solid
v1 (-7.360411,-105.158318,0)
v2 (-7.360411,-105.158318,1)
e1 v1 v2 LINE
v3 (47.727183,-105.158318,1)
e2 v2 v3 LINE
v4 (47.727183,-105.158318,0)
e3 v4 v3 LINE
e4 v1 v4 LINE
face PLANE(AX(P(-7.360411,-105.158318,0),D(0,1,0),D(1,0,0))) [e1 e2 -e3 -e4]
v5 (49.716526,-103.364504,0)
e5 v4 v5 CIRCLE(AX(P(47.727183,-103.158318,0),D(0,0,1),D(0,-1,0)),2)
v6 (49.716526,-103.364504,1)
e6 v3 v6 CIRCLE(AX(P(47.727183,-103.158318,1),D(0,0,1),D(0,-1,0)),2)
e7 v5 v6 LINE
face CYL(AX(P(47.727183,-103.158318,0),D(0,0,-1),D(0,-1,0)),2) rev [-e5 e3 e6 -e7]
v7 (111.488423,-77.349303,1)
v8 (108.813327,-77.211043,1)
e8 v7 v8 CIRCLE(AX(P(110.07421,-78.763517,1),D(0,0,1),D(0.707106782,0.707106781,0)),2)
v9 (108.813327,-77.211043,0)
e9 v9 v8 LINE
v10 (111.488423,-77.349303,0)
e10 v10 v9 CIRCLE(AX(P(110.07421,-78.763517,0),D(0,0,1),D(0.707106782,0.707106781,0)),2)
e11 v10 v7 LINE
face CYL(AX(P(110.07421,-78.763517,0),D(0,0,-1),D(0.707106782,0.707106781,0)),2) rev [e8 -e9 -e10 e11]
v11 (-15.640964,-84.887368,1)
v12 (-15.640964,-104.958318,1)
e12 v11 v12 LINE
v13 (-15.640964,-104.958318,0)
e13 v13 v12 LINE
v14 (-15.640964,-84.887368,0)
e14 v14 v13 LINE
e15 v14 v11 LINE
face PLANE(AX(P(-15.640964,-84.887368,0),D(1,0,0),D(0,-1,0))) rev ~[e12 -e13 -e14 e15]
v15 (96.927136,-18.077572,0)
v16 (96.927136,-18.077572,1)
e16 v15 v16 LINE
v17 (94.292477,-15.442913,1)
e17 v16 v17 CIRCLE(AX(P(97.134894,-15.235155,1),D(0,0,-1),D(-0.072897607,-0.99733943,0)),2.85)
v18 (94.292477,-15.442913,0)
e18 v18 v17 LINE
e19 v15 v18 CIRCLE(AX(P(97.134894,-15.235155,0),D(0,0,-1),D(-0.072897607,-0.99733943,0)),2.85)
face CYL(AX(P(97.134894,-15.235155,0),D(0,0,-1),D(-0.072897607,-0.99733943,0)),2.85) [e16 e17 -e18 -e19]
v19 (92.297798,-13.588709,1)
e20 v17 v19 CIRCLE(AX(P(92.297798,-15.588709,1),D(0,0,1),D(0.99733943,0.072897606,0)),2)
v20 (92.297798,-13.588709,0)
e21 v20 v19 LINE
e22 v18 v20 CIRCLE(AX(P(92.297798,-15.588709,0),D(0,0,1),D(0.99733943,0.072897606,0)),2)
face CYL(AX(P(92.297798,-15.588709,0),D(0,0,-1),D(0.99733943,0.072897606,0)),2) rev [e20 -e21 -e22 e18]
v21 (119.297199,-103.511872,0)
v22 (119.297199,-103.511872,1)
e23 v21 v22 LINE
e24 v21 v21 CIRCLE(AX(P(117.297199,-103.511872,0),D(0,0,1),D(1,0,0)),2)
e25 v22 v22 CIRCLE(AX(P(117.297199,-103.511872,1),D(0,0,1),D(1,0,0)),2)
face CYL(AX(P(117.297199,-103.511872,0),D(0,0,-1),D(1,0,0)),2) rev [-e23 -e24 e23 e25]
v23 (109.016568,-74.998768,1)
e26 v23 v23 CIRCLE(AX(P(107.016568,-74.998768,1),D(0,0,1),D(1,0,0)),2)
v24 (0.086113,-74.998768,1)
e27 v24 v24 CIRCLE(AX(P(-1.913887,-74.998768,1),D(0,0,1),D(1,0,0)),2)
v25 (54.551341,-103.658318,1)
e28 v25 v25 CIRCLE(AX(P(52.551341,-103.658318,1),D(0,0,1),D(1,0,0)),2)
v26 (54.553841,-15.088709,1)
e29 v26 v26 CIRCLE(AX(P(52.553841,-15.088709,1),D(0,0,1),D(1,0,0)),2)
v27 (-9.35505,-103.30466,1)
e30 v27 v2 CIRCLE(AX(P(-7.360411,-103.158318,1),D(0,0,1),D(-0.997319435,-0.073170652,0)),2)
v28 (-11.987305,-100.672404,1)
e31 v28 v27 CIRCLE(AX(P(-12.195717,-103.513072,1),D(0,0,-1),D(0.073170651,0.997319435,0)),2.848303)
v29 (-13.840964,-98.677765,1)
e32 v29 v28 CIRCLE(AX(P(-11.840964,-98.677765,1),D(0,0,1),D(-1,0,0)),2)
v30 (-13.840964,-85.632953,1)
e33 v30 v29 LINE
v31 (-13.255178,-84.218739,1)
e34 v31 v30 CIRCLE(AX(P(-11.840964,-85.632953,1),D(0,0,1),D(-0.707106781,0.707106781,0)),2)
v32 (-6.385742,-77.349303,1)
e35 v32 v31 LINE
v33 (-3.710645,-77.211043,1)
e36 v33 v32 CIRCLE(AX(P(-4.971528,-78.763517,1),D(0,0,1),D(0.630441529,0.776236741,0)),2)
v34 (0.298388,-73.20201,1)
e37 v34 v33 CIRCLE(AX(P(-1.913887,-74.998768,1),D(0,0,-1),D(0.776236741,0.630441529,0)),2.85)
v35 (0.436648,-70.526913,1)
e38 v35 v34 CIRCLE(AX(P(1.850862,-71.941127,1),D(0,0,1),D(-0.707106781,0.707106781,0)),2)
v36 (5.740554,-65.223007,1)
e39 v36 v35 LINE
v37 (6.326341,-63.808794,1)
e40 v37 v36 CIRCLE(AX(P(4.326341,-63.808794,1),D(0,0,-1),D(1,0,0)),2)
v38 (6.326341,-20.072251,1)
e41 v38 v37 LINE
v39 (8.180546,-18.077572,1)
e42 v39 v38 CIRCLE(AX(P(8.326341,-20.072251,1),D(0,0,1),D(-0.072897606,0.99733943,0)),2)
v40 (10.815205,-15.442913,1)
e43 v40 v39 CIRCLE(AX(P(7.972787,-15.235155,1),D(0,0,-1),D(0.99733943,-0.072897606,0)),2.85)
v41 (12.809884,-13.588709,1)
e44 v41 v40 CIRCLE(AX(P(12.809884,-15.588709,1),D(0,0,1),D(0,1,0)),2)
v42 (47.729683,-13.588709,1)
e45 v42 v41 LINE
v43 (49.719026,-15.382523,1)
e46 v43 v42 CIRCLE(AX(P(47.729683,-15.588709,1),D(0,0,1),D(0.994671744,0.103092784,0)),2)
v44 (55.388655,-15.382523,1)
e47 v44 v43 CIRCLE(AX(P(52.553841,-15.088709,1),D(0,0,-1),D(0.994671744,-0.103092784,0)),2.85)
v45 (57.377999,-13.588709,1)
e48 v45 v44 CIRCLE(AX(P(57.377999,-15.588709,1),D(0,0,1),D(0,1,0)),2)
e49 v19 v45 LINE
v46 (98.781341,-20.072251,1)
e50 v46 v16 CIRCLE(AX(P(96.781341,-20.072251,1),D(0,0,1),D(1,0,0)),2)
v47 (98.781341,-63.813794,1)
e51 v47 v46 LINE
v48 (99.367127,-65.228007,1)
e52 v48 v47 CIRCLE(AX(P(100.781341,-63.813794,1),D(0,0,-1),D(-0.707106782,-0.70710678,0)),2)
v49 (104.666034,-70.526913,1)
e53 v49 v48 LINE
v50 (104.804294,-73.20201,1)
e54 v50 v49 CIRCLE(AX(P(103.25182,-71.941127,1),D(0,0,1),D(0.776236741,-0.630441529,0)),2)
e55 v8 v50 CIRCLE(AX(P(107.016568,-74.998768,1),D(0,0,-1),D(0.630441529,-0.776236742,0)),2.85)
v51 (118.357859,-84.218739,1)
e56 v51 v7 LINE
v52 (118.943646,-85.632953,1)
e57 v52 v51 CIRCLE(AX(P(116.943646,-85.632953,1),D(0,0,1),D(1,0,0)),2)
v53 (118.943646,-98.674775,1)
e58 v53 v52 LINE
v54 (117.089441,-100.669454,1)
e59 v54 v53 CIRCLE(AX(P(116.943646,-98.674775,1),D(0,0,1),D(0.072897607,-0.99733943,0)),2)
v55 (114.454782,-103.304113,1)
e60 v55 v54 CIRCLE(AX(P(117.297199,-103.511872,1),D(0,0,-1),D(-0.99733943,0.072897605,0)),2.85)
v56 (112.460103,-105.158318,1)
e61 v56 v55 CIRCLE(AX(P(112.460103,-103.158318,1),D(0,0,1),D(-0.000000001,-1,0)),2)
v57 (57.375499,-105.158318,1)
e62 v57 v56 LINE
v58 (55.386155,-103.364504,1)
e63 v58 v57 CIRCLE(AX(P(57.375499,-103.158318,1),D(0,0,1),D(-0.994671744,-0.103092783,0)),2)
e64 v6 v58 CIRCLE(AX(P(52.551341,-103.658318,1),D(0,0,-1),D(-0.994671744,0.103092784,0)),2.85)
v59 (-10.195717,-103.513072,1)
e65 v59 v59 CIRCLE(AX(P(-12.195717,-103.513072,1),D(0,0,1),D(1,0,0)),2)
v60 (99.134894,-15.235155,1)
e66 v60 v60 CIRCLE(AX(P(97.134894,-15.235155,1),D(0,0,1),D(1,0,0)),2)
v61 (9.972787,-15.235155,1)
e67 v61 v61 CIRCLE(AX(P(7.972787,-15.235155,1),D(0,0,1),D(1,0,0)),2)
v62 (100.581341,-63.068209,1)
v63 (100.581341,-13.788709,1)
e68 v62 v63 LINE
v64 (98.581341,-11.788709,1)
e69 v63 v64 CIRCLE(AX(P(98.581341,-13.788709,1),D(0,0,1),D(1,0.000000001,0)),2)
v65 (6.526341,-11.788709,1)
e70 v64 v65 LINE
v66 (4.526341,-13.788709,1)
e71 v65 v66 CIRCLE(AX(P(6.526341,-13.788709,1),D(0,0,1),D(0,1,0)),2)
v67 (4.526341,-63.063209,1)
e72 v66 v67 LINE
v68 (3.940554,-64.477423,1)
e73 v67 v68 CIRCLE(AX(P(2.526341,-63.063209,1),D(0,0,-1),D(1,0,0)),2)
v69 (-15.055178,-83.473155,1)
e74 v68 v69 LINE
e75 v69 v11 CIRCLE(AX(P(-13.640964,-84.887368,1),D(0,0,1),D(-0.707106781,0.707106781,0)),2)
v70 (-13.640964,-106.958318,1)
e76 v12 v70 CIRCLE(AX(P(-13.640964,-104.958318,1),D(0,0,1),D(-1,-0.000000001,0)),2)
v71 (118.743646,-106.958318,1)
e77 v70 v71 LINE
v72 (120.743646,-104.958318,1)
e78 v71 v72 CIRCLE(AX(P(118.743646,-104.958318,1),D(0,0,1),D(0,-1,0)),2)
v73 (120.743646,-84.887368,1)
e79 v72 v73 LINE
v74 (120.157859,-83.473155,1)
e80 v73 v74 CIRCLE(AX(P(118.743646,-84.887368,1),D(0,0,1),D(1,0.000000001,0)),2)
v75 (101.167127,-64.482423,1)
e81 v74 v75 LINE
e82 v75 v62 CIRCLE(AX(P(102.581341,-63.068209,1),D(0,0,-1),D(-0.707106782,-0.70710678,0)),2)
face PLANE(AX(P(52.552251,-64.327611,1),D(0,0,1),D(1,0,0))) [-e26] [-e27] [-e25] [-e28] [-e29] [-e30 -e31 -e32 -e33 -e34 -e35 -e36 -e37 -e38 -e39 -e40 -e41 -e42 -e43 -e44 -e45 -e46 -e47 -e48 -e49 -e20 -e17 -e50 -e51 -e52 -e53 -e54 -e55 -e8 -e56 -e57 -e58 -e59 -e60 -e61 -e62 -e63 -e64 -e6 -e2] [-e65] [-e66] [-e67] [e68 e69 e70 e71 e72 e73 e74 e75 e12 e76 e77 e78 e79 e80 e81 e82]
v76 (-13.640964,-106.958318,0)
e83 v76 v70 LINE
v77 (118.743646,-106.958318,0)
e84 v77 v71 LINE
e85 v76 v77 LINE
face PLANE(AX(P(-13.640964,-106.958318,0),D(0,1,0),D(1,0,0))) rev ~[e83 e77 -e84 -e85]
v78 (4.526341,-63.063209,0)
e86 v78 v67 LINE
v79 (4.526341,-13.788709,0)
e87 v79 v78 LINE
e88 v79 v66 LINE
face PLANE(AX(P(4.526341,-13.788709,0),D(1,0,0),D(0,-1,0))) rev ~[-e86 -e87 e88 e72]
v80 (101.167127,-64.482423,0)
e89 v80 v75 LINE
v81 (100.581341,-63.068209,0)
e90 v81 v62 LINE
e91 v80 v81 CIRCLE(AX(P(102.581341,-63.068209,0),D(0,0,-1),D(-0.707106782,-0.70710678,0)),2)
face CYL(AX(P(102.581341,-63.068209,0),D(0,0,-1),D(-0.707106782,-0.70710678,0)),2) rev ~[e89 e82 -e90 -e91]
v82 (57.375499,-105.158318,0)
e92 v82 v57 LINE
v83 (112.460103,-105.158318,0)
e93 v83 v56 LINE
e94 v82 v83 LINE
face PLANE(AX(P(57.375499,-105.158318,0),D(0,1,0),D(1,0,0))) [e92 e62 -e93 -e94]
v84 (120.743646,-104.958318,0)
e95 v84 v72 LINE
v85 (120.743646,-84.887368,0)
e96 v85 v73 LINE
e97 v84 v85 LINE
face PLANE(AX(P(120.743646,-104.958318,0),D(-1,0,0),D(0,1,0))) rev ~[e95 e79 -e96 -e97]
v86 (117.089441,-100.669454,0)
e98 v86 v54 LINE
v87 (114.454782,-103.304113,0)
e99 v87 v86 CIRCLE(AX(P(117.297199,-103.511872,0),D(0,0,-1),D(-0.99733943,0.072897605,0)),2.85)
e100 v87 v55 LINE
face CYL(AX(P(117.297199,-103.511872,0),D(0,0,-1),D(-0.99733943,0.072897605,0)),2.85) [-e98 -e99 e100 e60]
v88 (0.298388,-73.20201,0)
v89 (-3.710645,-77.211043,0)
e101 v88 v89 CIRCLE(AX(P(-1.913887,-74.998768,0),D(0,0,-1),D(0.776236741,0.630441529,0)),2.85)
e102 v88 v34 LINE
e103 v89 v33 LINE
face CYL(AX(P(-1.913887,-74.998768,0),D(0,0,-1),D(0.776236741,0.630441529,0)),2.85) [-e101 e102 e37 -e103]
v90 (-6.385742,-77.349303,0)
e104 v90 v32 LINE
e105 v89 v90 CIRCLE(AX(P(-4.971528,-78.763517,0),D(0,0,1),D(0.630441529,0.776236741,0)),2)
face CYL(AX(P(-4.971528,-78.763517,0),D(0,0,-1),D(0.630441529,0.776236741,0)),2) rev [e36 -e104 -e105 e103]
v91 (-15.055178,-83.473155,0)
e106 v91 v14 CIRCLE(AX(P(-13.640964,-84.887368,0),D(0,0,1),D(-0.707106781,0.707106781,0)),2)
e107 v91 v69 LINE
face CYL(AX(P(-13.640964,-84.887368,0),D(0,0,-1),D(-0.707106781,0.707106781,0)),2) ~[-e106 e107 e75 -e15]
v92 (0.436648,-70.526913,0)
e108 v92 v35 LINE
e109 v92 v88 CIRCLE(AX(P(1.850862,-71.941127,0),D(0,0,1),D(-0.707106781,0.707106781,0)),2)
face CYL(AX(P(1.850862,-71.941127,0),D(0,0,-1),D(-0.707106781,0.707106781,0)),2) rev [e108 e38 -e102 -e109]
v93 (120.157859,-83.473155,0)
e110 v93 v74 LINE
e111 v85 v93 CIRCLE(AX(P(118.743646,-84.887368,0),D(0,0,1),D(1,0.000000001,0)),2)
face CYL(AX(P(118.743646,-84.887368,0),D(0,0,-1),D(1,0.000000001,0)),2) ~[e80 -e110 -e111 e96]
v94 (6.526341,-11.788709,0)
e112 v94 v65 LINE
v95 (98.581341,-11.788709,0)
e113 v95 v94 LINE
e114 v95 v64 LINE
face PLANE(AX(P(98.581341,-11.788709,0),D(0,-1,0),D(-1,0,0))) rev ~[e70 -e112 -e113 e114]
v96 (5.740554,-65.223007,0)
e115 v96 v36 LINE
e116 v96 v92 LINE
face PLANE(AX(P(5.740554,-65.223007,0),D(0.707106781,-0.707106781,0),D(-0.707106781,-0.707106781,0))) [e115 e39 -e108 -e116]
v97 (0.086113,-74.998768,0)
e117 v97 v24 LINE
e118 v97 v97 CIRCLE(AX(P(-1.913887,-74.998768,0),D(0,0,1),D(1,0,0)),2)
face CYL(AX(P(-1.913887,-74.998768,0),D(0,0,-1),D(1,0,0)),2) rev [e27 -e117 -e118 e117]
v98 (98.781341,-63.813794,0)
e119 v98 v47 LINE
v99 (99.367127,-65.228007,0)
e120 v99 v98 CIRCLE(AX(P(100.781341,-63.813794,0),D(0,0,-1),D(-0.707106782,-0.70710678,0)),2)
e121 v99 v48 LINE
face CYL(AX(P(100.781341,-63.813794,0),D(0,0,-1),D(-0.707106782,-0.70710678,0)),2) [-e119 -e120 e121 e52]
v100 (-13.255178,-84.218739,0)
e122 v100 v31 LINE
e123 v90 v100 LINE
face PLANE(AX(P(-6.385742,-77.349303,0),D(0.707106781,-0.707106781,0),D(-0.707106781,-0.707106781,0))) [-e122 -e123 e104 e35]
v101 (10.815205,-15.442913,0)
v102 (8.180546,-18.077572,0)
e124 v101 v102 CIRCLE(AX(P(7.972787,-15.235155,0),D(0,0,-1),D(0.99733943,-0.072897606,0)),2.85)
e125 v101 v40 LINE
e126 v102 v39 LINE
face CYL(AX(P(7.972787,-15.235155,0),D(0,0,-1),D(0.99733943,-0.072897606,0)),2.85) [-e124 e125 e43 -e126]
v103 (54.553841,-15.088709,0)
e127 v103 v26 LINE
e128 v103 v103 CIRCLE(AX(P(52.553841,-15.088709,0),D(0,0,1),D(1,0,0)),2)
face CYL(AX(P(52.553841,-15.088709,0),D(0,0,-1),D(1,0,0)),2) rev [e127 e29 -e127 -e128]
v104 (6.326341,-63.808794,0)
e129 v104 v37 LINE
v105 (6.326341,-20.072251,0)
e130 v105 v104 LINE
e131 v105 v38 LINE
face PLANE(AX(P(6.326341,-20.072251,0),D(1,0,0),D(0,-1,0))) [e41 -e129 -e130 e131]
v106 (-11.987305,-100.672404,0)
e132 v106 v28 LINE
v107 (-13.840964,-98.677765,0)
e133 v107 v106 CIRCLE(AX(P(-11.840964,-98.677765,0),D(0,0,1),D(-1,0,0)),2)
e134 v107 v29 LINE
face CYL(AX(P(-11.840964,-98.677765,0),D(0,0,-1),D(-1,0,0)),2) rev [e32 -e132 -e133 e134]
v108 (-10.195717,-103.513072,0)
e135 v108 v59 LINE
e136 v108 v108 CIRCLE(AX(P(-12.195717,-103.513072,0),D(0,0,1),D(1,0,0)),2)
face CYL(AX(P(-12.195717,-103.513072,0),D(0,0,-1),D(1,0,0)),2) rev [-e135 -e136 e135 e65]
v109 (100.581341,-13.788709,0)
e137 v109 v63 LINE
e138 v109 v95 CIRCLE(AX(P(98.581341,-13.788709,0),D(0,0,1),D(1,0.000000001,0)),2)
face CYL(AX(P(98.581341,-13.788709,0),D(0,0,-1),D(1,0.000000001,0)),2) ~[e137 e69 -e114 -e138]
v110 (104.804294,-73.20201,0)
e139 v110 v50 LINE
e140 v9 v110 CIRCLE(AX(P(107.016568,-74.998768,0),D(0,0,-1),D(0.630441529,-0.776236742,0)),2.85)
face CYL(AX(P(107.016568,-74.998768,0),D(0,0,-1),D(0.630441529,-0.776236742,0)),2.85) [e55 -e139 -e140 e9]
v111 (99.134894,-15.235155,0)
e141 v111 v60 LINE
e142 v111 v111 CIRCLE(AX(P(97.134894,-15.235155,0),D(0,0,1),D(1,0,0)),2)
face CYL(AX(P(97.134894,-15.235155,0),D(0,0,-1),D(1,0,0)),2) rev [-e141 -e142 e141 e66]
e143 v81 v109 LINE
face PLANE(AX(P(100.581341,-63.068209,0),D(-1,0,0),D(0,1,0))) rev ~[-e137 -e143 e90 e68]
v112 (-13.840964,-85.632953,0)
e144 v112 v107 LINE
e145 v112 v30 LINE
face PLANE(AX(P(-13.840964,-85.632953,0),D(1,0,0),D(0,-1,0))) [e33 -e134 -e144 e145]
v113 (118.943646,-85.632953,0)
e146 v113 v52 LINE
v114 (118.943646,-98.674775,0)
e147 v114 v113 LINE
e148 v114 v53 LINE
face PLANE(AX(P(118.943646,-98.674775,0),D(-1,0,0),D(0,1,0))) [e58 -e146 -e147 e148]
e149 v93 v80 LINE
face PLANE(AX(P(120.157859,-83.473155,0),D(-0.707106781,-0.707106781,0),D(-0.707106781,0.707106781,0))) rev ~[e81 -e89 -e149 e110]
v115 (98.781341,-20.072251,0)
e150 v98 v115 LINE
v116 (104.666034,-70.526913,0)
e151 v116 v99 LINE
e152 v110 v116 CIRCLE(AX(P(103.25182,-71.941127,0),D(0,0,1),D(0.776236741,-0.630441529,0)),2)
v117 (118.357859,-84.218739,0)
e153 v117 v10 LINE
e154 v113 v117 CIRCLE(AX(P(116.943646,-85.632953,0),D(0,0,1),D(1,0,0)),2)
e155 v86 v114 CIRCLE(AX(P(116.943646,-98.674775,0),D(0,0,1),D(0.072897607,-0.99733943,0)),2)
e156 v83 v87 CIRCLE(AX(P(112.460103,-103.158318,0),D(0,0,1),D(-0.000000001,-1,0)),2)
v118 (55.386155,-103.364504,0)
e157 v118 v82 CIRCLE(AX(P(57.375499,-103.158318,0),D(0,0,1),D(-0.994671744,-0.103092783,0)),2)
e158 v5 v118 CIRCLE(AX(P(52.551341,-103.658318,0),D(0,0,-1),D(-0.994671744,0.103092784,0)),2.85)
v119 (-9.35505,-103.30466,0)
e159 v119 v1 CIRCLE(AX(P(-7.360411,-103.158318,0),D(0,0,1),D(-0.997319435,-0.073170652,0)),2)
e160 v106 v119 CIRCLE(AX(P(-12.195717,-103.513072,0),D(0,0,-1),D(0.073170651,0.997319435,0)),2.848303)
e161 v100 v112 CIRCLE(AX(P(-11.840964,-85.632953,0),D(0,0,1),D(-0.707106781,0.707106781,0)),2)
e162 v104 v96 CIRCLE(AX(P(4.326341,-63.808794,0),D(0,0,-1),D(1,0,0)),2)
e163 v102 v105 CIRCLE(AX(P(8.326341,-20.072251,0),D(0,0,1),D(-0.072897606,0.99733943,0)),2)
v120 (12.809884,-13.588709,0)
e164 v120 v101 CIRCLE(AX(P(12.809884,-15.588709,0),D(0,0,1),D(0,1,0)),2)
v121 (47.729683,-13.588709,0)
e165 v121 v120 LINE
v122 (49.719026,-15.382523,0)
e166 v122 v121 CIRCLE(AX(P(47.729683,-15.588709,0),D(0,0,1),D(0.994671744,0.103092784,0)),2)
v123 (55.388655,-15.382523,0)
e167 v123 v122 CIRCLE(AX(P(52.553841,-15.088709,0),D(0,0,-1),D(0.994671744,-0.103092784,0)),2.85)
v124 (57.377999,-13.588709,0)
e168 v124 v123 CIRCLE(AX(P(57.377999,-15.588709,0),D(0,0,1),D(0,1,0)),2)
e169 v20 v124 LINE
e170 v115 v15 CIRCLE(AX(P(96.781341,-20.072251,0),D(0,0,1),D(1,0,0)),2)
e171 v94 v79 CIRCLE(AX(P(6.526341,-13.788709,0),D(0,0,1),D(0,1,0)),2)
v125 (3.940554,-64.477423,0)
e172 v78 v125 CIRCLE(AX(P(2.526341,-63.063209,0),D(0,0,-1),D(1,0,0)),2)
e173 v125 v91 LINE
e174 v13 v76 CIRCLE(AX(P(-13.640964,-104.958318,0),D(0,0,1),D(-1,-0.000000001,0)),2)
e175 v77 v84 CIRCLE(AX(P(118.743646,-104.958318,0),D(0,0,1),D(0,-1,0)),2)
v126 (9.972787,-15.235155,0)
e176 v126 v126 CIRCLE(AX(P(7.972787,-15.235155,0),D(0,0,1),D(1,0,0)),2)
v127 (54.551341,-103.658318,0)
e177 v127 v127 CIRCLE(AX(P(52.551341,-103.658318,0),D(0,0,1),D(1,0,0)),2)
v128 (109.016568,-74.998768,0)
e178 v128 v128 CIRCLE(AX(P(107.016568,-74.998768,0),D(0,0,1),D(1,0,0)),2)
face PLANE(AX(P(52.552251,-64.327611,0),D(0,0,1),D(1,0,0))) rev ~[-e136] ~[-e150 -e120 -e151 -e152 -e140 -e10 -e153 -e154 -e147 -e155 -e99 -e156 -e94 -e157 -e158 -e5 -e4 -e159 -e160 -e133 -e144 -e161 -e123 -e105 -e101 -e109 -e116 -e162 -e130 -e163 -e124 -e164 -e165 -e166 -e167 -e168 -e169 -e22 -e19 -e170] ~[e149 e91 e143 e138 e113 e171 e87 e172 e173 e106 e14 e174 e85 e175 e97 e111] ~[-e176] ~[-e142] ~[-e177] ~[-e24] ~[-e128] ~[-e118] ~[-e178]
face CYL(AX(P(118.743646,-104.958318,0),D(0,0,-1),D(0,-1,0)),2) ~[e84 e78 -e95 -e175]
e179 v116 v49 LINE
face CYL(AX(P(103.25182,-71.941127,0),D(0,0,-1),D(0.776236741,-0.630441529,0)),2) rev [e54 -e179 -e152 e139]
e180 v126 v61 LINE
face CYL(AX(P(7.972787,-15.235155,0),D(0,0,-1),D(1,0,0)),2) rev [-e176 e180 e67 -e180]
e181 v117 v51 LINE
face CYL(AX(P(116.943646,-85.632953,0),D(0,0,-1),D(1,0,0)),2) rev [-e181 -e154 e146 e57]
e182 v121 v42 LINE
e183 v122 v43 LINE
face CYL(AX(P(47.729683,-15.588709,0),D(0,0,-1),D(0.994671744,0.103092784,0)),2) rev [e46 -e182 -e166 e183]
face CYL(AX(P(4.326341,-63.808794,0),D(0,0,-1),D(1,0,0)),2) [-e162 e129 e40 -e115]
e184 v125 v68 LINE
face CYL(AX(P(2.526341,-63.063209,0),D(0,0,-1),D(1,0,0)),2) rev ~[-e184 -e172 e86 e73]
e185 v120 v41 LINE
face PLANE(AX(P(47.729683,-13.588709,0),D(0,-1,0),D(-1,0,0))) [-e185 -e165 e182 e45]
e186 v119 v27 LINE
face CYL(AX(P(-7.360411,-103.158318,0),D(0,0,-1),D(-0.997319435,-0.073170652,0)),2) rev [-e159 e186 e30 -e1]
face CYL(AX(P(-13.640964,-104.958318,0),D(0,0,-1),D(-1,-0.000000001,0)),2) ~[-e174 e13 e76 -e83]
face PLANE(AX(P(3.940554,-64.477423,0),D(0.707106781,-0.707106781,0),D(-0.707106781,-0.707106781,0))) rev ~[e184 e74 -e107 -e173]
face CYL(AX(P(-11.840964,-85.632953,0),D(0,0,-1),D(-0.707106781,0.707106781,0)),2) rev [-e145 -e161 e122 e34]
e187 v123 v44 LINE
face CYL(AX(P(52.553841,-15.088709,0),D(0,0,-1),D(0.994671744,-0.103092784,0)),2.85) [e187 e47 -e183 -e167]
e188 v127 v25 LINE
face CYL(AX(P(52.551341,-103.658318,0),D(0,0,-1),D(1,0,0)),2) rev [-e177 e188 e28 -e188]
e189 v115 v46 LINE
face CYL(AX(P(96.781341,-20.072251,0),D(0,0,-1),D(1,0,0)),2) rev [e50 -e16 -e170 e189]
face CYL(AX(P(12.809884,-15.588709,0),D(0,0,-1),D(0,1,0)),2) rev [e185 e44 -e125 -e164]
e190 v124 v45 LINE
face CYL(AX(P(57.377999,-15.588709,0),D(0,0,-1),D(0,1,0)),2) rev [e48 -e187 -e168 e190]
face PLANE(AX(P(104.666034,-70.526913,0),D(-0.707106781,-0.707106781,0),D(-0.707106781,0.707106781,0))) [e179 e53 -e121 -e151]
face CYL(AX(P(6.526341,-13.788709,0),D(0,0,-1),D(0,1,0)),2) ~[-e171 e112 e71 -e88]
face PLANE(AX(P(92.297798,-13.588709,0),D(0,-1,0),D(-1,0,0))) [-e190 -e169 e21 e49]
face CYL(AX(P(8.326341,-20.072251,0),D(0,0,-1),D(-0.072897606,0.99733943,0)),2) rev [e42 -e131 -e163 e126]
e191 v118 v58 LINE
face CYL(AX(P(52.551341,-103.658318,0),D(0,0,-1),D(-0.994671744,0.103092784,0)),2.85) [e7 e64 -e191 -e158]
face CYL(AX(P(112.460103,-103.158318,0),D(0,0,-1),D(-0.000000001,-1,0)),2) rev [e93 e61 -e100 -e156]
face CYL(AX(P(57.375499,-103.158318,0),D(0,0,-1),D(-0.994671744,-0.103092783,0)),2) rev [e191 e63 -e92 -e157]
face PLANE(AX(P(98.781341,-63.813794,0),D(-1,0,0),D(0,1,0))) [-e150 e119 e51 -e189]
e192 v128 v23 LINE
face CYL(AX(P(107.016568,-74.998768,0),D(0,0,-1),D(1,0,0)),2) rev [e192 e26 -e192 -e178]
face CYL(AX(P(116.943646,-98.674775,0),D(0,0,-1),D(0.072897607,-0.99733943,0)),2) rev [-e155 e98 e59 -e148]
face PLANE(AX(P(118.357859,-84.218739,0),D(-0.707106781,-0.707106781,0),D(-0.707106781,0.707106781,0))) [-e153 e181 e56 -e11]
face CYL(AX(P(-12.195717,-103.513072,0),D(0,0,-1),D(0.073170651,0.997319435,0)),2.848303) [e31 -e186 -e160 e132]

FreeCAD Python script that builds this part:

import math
import FreeCAD as App
import Part
import Sketcher
Q = App.Units.Quantity

doc = App.newDocument("Part")
body = doc.addObject("PartDesign::Body", "Body")

# Sketch on XY plane
sketch1 = body.newObject("Sketcher::SketchObject", "Sketch")
sketch1.AttachmentSupport = (doc.getObject("XY_Plane"), [""])
sketch1.MapMode = "FlatFace"
sketch1.addGeometry(Part.LineSegment(App.Vector(100.581341, -63.068209, 0), App.Vector(100.581341, -13.788709, 0)), False)
sketch1.addGeometry(Part.ArcOfCircle(Part.Circle(App.Vector(98.581341, -13.788709, 0), App.Vector(0, 0, 1), 2), math.radians(0), math.radians(90)), False)
sketch1.addGeometry(Part.LineSegment(App.Vector(98.581341, -11.788709, 0), App.Vector(6.526341, -11.788709, 0)), False)
sketch1.addGeometry(Part.ArcOfCircle(Part.Circle(App.Vector(6.526341, -13.788709, 0), App.Vector(0, 0, 1), 2), math.radians(90), math.radians(180)), False)
sketch1.addGeometry(Part.LineSegment(App.Vector(4.526341, -13.788709, 0), App.Vector(4.526341, -63.063209, 0)), False)
sketch1.addGeometry(Part.ArcOfCircle(Part.Circle(App.Vector(2.526341, -63.063209, 0), App.Vector(0, 0, 1), 2), math.radians(-45), math.radians(0)), False)
sketch1.addGeometry(Part.LineSegment(App.Vector(3.940554, -64.477423, 0), App.Vector(-15.055178, -83.473155, 0)), False)
sketch1.addGeometry(Part.ArcOfCircle(Part.Circle(App.Vector(-13.640964, -84.887368, 0), App.Vector(0, 0, 1), 2), math.radians(135), math.radians(180)), False)
sketch1.addGeometry(Part.LineSegment(App.Vector(-15.640964, -84.887368, 0), App.Vector(-15.640964, -104.958318, 0)), False)
sketch1.addGeometry(Part.ArcOfCircle(Part.Circle(App.Vector(-13.640964, -104.958318, 0), App.Vector(0, 0, 1), 2), math.radians(-180), math.radians(-90)), False)
sketch1.addGeometry(Part.LineSegment(App.Vector(-13.640964, -106.958318, 0), App.Vector(118.743646, -106.958318, 0)), False)
sketch1.addGeometry(Part.ArcOfCircle(Part.Circle(App.Vector(118.743646, -104.958318, 0), App.Vector(0, 0, 1), 2), math.radians(-90), math.radians(0)), False)
sketch1.addGeometry(Part.LineSegment(App.Vector(120.743646, -104.958318, 0), App.Vector(120.743646, -84.887368, 0)), False)
sketch1.addGeometry(Part.ArcOfCircle(Part.Circle(App.Vector(118.743646, -84.887368, 0), App.Vector(0, 0, 1), 2), math.radians(0), math.radians(45)), False)
sketch1.addGeometry(Part.LineSegment(App.Vector(120.157859, -83.473155, 0), App.Vector(101.167127, -64.482423, 0)), False)
sketch1.addGeometry(Part.ArcOfCircle(Part.Circle(App.Vector(102.581341, -63.068209, 0), App.Vector(0, 0, 1), 2), math.radians(-180), math.radians(-135)), False)
sketch1.addGeometry(Part.Circle(App.Vector(-12.195717, -103.513072, 0), App.Vector(0, 0, 1), 2), False)
sketch1.addGeometry(Part.Circle(App.Vector(-1.913887, -74.998768, 0), App.Vector(0, 0, 1), 2), False)
sketch1.addGeometry(Part.Circle(App.Vector(52.551341, -103.658318, 0), App.Vector(0, 0, 1), 2), False)
sketch1.addGeometry(Part.Circle(App.Vector(117.297199, -103.511872, 0), App.Vector(0, 0, 1), 2), False)
sketch1.addGeometry(Part.LineSegment(App.Vector(98.781341, -20.072251, 0), App.Vector(98.781341, -63.813794, 0)), False)
sketch1.addGeometry(Part.ArcOfCircle(Part.Circle(App.Vector(100.781341, -63.813794, 0), App.Vector(0, 0, 1), 2), math.radians(-180), math.radians(-135)), False)
sketch1.addGeometry(Part.LineSegment(App.Vector(99.367127, -65.228007, 0), App.Vector(104.666034, -70.526913, 0)), False)
sketch1.addGeometry(Part.ArcOfCircle(Part.Circle(App.Vector(103.25182, -71.941127, 0), App.Vector(0, 0, 1), 2), math.radians(-39.082705), math.radians(45)), False)
sketch1.addGeometry(Part.ArcOfCircle(Part.Circle(App.Vector(107.016568, -74.998768, 0), App.Vector(0, 0, 1), 2.85), math.radians(140.917295), math.radians(309.082705)), False)
sketch1.addGeometry(Part.ArcOfCircle(Part.Circle(App.Vector(110.07421, -78.763517, 0), App.Vector(0, 0, 1), 2), math.radians(45), math.radians(129.082705)), False)
sketch1.addGeometry(Part.LineSegment(App.Vector(111.488423, -77.349303, 0), App.Vector(118.357859, -84.218739, 0)), False)
sketch1.addGeometry(Part.ArcOfCircle(Part.Circle(App.Vector(116.943646, -85.632953, 0), App.Vector(0, 0, 1), 2), math.radians(0), math.radians(45)), False)
sketch1.addGeometry(Part.LineSegment(App.Vector(118.943646, -85.632953, 0), App.Vector(118.943646, -98.674775, 0)), False)
sketch1.addGeometry(Part.ArcOfCircle(Part.Circle(App.Vector(116.943646, -98.674775, 0), App.Vector(0, 0, 1), 2), math.radians(-85.819567), math.radians(0)), False)
sketch1.addGeometry(Part.ArcOfCircle(Part.Circle(App.Vector(117.297199, -103.511872, 0), App.Vector(0, 0, 1), 2.85), math.radians(94.180433), math.radians(175.819567)), False)
sketch1.addGeometry(Part.ArcOfCircle(Part.Circle(App.Vector(112.460103, -103.158318, 0), App.Vector(0, 0, 1), 2), math.radians(-90), math.radians(-4.180433)), False)
sketch1.addGeometry(Part.LineSegment(App.Vector(112.460103, -105.158318, 0), App.Vector(57.375499, -105.158318, 0)), False)
sketch1.addGeometry(Part.ArcOfCircle(Part.Circle(App.Vector(57.375499, -103.158318, 0), App.Vector(0, 0, 1), 2), math.radians(-174.082705), math.radians(-90)), False)
sketch1.addGeometry(Part.ArcOfCircle(Part.Circle(App.Vector(52.551341, -103.658318, 0), App.Vector(0, 0, 1), 2.85), math.radians(5.917295), math.radians(174.082705)), False)
sketch1.addGeometry(Part.ArcOfCircle(Part.Circle(App.Vector(47.727183, -103.158318, 0), App.Vector(0, 0, 1), 2), math.radians(-90), math.radians(-5.917295)), False)
sketch1.addGeometry(Part.LineSegment(App.Vector(47.727183, -105.158318, 0), App.Vector(-7.360411, -105.158318, 0)), False)
sketch1.addGeometry(Part.ArcOfCircle(Part.Circle(App.Vector(-7.360411, -103.158318, 0), App.Vector(0, 0, 1), 2), math.radians(-175.80388), math.radians(-90)), False)
sketch1.addGeometry(Part.ArcOfCircle(Part.Circle(App.Vector(-12.195717, -103.513072, 0), App.Vector(0, 0, 1), 2.848303), math.radians(4.19612), math.radians(85.803881)), False)
sketch1.addGeometry(Part.ArcOfCircle(Part.Circle(App.Vector(-11.840964, -98.677765, 0), App.Vector(0, 0, 1), 2), math.radians(180), math.radians(265.80388)), False)
sketch1.addGeometry(Part.LineSegment(App.Vector(-13.840964, -98.677765, 0), App.Vector(-13.840964, -85.632953, 0)), False)
sketch1.addGeometry(Part.ArcOfCircle(Part.Circle(App.Vector(-11.840964, -85.632953, 0), App.Vector(0, 0, 1), 2), math.radians(135), math.radians(180)), False)
sketch1.addGeometry(Part.LineSegment(App.Vector(-13.255178, -84.218739, 0), App.Vector(-6.385742, -77.349303, 0)), False)
sketch1.addGeometry(Part.ArcOfCircle(Part.Circle(App.Vector(-4.971528, -78.763517, 0), App.Vector(0, 0, 1), 2), math.radians(50.917295), math.radians(135)), False)
sketch1.addGeometry(Part.ArcOfCircle(Part.Circle(App.Vector(-1.913887, -74.998768, 0), App.Vector(0, 0, 1), 2.85), math.radians(-129.082705), math.radians(39.082705)), False)
sketch1.addGeometry(Part.ArcOfCircle(Part.Circle(App.Vector(1.850862, -71.941127, 0), App.Vector(0, 0, 1), 2), math.radians(135), math.radians(219.082705)), False)
sketch1.addGeometry(Part.LineSegment(App.Vector(0.436648, -70.526913, 0), App.Vector(5.740554, -65.223007, 0)), False)
sketch1.addGeometry(Part.ArcOfCircle(Part.Circle(App.Vector(4.326341, -63.808794, 0), App.Vector(0, 0, 1), 2), math.radians(-45), math.radians(0)), False)
sketch1.addGeometry(Part.LineSegment(App.Vector(6.326341, -63.808794, 0), App.Vector(6.326341, -20.072251, 0)), False)
sketch1.addGeometry(Part.ArcOfCircle(Part.Circle(App.Vector(8.326341, -20.072251, 0), App.Vector(0, 0, 1), 2), math.radians(94.180433), math.radians(180)), False)
sketch1.addGeometry(Part.ArcOfCircle(Part.Circle(App.Vector(7.972787, -15.235155, 0), App.Vector(0, 0, 1), 2.85), math.radians(-85.819567), math.radians(-4.180433)), False)
sketch1.addGeometry(Part.ArcOfCircle(Part.Circle(App.Vector(12.809884, -15.588709, 0), App.Vector(0, 0, 1), 2), math.radians(90), math.radians(175.819567)), False)
sketch1.addGeometry(Part.LineSegment(App.Vector(12.809884, -13.588709, 0), App.Vector(47.729683, -13.588709, 0)), False)
sketch1.addGeometry(Part.ArcOfCircle(Part.Circle(App.Vector(47.729683, -15.588709, 0), App.Vector(0, 0, 1), 2), math.radians(5.917295), math.radians(90)), False)
sketch1.addGeometry(Part.ArcOfCircle(Part.Circle(App.Vector(52.553841, -15.088709, 0), App.Vector(0, 0, 1), 2.85), math.radians(-174.082705), math.radians(-5.917295)), False)
sketch1.addGeometry(Part.ArcOfCircle(Part.Circle(App.Vector(57.377999, -15.588709, 0), App.Vector(0, 0, 1), 2), math.radians(90), math.radians(174.082705)), False)
sketch1.addGeometry(Part.LineSegment(App.Vector(57.377999, -13.588709, 0), App.Vector(92.297798, -13.588709, 0)), False)
sketch1.addGeometry(Part.ArcOfCircle(Part.Circle(App.Vector(92.297798, -15.588709, 0), App.Vector(0, 0, 1), 2), math.radians(4.180433), math.radians(90)), False)
sketch1.addGeometry(Part.ArcOfCircle(Part.Circle(App.Vector(97.134894, -15.235155, 0), App.Vector(0, 0, 1), 2.85), math.radians(-175.819567), math.radians(-94.180433)), False)
sketch1.addGeometry(Part.ArcOfCircle(Part.Circle(App.Vector(96.781341, -20.072251, 0), App.Vector(0, 0, 1), 2), math.radians(0), math.radians(85.819567)), False)
sketch1.addGeometry(Part.Circle(App.Vector(107.016568, -74.998768, 0), App.Vector(0, 0, 1), 2), False)
sketch1.addGeometry(Part.Circle(App.Vector(7.972787, -15.235155, 0), App.Vector(0, 0, 1), 2), False)
sketch1.addGeometry(Part.Circle(App.Vector(52.553841, -15.088709, 0), App.Vector(0, 0, 1), 2), False)
sketch1.addGeometry(Part.Circle(App.Vector(97.134894, -15.235155, 0), App.Vector(0, 0, 1), 2), False)
sketch1.addConstraint(Sketcher.Constraint("Coincident", 0, 2, 1, 1))
sketch1.addConstraint(Sketcher.Constraint("Coincident", 1, 2, 2, 1))
sketch1.addConstraint(Sketcher.Constraint("Coincident", 2, 2, 3, 1))
sketch1.addConstraint(Sketcher.Constraint("Coincident", 3, 2, 4, 1))
sketch1.addConstraint(Sketcher.Constraint("Coincident", 4, 2, 5, 2))
sketch1.addConstraint(Sketcher.Constraint("Coincident", 5, 1, 6, 1))
sketch1.addConstraint(Sketcher.Constraint("Coincident", 6, 2, 7, 1))
sketch1.addConstraint(Sketcher.Constraint("Coincident", 7, 2, 8, 1))
sketch1.addConstraint(Sketcher.Constraint("Coincident", 8, 2, 9, 1))
sketch1.addConstraint(Sketcher.Constraint("Coincident", 9, 2, 10, 1))
sketch1.addConstraint(Sketcher.Constraint("Coincident", 10, 2, 11, 1))
sketch1.addConstraint(Sketcher.Constraint("Coincident", 11, 2, 12, 1))
sketch1.addConstraint(Sketcher.Constraint("Coincident", 12, 2, 13, 1))
sketch1.addConstraint(Sketcher.Constraint("Coincident", 13, 2, 14, 1))
sketch1.addConstraint(Sketcher.Constraint("Coincident", 14, 2, 15, 2))
sketch1.addConstraint(Sketcher.Constraint("Coincident", 15, 1, 0, 1))
sketch1.addConstraint(Sketcher.Constraint("Coincident", 20, 2, 21, 1))
sketch1.addConstraint(Sketcher.Constraint("Coincident", 21, 2, 22, 1))
sketch1.addConstraint(Sketcher.Constraint("Coincident", 22, 2, 23, 2))
sketch1.addConstraint(Sketcher.Constraint("Coincident", 23, 1, 24, 1))
sketch1.addConstraint(Sketcher.Constraint("Coincident", 24, 2, 25, 2))
sketch1.addConstraint(Sketcher.Constraint("Coincident", 25, 1, 26, 1))
sketch1.addConstraint(Sketcher.Constraint("Coincident", 26, 2, 27, 2))
sketch1.addConstraint(Sketcher.Constraint("Coincident", 27, 1, 28, 1))
sketch1.addConstraint(Sketcher.Constraint("Coincident", 28, 2, 29, 2))
sketch1.addConstraint(Sketcher.Constraint("Coincident", 29, 1, 30, 1))
sketch1.addConstraint(Sketcher.Constraint("Coincident", 30, 2, 31, 2))
sketch1.addConstraint(Sketcher.Constraint("Coincident", 31, 1, 32, 1))
sketch1.addConstraint(Sketcher.Constraint("Coincident", 32, 2, 33, 2))
sketch1.addConstraint(Sketcher.Constraint("Coincident", 33, 1, 34, 1))
sketch1.addConstraint(Sketcher.Constraint("Coincident", 34, 2, 35, 2))
sketch1.addConstraint(Sketcher.Constraint("Coincident", 35, 1, 36, 1))
sketch1.addConstraint(Sketcher.Constraint("Coincident", 36, 2, 37, 2))
sketch1.addConstraint(Sketcher.Constraint("Coincident", 37, 1, 38, 1))
sketch1.addConstraint(Sketcher.Constraint("Coincident", 38, 2, 39, 2))
sketch1.addConstraint(Sketcher.Constraint("Coincident", 39, 1, 40, 1))
sketch1.addConstraint(Sketcher.Constraint("Coincident", 40, 2, 41, 2))
sketch1.addConstraint(Sketcher.Constraint("Coincident", 41, 1, 42, 1))
sketch1.addConstraint(Sketcher.Constraint("Coincident", 42, 2, 43, 2))
sketch1.addConstraint(Sketcher.Constraint("Coincident", 43, 1, 44, 1))
sketch1.addConstraint(Sketcher.Constraint("Coincident", 44, 2, 45, 2))
sketch1.addConstraint(Sketcher.Constraint("Coincident", 45, 1, 46, 1))
sketch1.addConstraint(Sketcher.Constraint("Coincident", 46, 2, 47, 1))
sketch1.addConstraint(Sketcher.Constraint("Coincident", 47, 2, 48, 1))
sketch1.addConstraint(Sketcher.Constraint("Coincident", 48, 2, 49, 2))
sketch1.addConstraint(Sketcher.Constraint("Coincident", 49, 1, 50, 1))
sketch1.addConstraint(Sketcher.Constraint("Coincident", 50, 2, 51, 2))
sketch1.addConstraint(Sketcher.Constraint("Coincident", 51, 1, 52, 1))
sketch1.addConstraint(Sketcher.Constraint("Coincident", 52, 2, 53, 2))
sketch1.addConstraint(Sketcher.Constraint("Coincident", 53, 1, 54, 1))
sketch1.addConstraint(Sketcher.Constraint("Coincident", 54, 2, 55, 2))
sketch1.addConstraint(Sketcher.Constraint("Coincident", 55, 1, 56, 1))
sketch1.addConstraint(Sketcher.Constraint("Coincident", 56, 2, 57, 2))
sketch1.addConstraint(Sketcher.Constraint("Coincident", 57, 1, 58, 1))
sketch1.addConstraint(Sketcher.Constraint("Coincident", 58, 2, 59, 2))
sketch1.addConstraint(Sketcher.Constraint("Coincident", 59, 1, 20, 1))
sketch1.addConstraint(Sketcher.Constraint("Vertical", 0))
sketch1.addConstraint(Sketcher.Constraint("Horizontal", 2))
sketch1.addConstraint(Sketcher.Constraint("Vertical", 4))
sketch1.addConstraint(Sketcher.Constraint("Vertical", 8))
sketch1.addConstraint(Sketcher.Constraint("Horizontal", 10))
sketch1.addConstraint(Sketcher.Constraint("Vertical", 12))
sketch1.addConstraint(Sketcher.Constraint("Vertical", 20))
sketch1.addConstraint(Sketcher.Constraint("Vertical", 28))
sketch1.addConstraint(Sketcher.Constraint("Horizontal", 32))
sketch1.addConstraint(Sketcher.Constraint("Horizontal", 36))
sketch1.addConstraint(Sketcher.Constraint("Vertical", 40))
sketch1.addConstraint(Sketcher.Constraint("Vertical", 48))
sketch1.addConstraint(Sketcher.Constraint("Horizontal", 52))
sketch1.addConstraint(Sketcher.Constraint("Horizontal", 56))
sketch1.addConstraint(Sketcher.Constraint("Coincident", 30, 3, 19, 3))
sketch1.addConstraint(Sketcher.Constraint("Coincident", 34, 3, 18, 3))
sketch1.addConstraint(Sketcher.Constraint("Coincident", 38, 3, 16, 3))
sketch1.addConstraint(Sketcher.Constraint("Coincident", 44, 3, 17, 3))
sketch1.addConstraint(Sketcher.Constraint("Coincident", 60, 3, 24, 3))
sketch1.addConstraint(Sketcher.Constraint("Coincident", 61, 3, 50, 3))
sketch1.addConstraint(Sketcher.Constraint("Coincident", 62, 3, 54, 3))
sketch1.addConstraint(Sketcher.Constraint("Coincident", 63, 3, 58, 3))
sketch1.addConstraint(Sketcher.Constraint("Diameter", 16, Q("4 mm")))
sketch1.addConstraint(Sketcher.Constraint("Diameter", 17, Q("4 mm")))
sketch1.addConstraint(Sketcher.Constraint("Diameter", 18, Q("4 mm")))
sketch1.addConstraint(Sketcher.Constraint("Diameter", 19, Q("4 mm")))
sketch1.addConstraint(Sketcher.Constraint("Diameter", 60, Q("4 mm")))
sketch1.addConstraint(Sketcher.Constraint("Diameter", 61, Q("4 mm")))
sketch1.addConstraint(Sketcher.Constraint("Diameter", 62, Q("4 mm")))
sketch1.addConstraint(Sketcher.Constraint("Diameter", 63, Q("4 mm")))
sketch1.addConstraint(Sketcher.Constraint("Radius", 1, Q("2 mm")))
sketch1.addConstraint(Sketcher.Constraint("Radius", 3, Q("2 mm")))
sketch1.addConstraint(Sketcher.Constraint("Radius", 5, Q("2 mm")))
sketch1.addConstraint(Sketcher.Constraint("Radius", 7, Q("2 mm")))
sketch1.addConstraint(Sketcher.Constraint("Radius", 9, Q("2 mm")))
sketch1.addConstraint(Sketcher.Constraint("Radius", 11, Q("2 mm")))
sketch1.addConstraint(Sketcher.Constraint("Radius", 13, Q("2 mm")))
sketch1.addConstraint(Sketcher.Constraint("Radius", 15, Q("2 mm")))
sketch1.addConstraint(Sketcher.Constraint("Radius", 21, Q("2 mm")))
sketch1.addConstraint(Sketcher.Constraint("Radius", 23, Q("2 mm")))
sketch1.addConstraint(Sketcher.Constraint("Radius", 25, Q("2 mm")))
sketch1.addConstraint(Sketcher.Constraint("Radius", 27, Q("2 mm")))
sketch1.addConstraint(Sketcher.Constraint("Radius", 29, Q("2 mm")))
sketch1.addConstraint(Sketcher.Constraint("Radius", 31, Q("2 mm")))
sketch1.addConstraint(Sketcher.Constraint("Radius", 33, Q("2 mm")))
sketch1.addConstraint(Sketcher.Constraint("Radius", 35, Q("2 mm")))
sketch1.addConstraint(Sketcher.Constraint("Radius", 37, Q("2 mm")))
sketch1.addConstraint(Sketcher.Constraint("Radius", 39, Q("2 mm")))
sketch1.addConstraint(Sketcher.Constraint("Radius", 41, Q("2 mm")))
sketch1.addConstraint(Sketcher.Constraint("Radius", 43, Q("2 mm")))
sketch1.addConstraint(Sketcher.Constraint("Radius", 45, Q("2 mm")))
sketch1.addConstraint(Sketcher.Constraint("Radius", 47, Q("2 mm")))
sketch1.addConstraint(Sketcher.Constraint("Radius", 49, Q("2 mm")))
sketch1.addConstraint(Sketcher.Constraint("Radius", 51, Q("2 mm")))
sketch1.addConstraint(Sketcher.Constraint("Radius", 53, Q("2 mm")))
sketch1.addConstraint(Sketcher.Constraint("Radius", 55, Q("2 mm")))
sketch1.addConstraint(Sketcher.Constraint("Radius", 57, Q("2 mm")))
sketch1.addConstraint(Sketcher.Constraint("Radius", 59, Q("2 mm")))
sketch1.addConstraint(Sketcher.Constraint("Radius", 24, Q("2.85 mm")))
sketch1.addConstraint(Sketcher.Constraint("Radius", 30, Q("2.85 mm")))
sketch1.addConstraint(Sketcher.Constraint("Radius", 34, Q("2.85 mm")))
sketch1.addConstraint(Sketcher.Constraint("Radius", 44, Q("2.85 mm")))
sketch1.addConstraint(Sketcher.Constraint("Radius", 50, Q("2.85 mm")))
sketch1.addConstraint(Sketcher.Constraint("Radius", 54, Q("2.85 mm")))
sketch1.addConstraint(Sketcher.Constraint("Radius", 58, Q("2.85 mm")))
sketch1.addConstraint(Sketcher.Constraint("DistanceX", 2, 2, 2, 1, Q("92.055 mm")))
sketch1.addConstraint(Sketcher.Constraint("DistanceX", 52, 1, 52, 2, Q("34.919799 mm")))
sketch1.addConstraint(Sketcher.Constraint("DistanceX", 56, 1, 56, 2, Q("34.919799 mm")))
sketch1.addConstraint(Sketcher.Constraint("DistanceY", 0, 1, 0, 2, Q("49.279501 mm")))
sketch1.addConstraint(Sketcher.Constraint("DistanceY", 4, 2, 4, 1, Q("49.274501 mm")))
sketch1.addConstraint(Sketcher.Constraint("DistanceX", -1, 1, 55, 3, Q("57.377999 mm")))
sketch1.addConstraint(Sketcher.Constraint("DistanceX", -1, 1, 55, 1, Q("57.377999 mm")))
sketch1.addConstraint(Sketcher.Constraint("Radius", 38, Q("2.848303 mm")))
sketch1.addConstraint(Sketcher.Constraint("DistanceX", 10, 1, 10, 2, Q("132.38461 mm")))
sketch1.addConstraint(Sketcher.Constraint("DistanceY", 8, 2, 8, 1, Q("20.07095 mm")))
sketch1.addConstraint(Sketcher.Constraint("DistanceY", 12, 1, 12, 2, Q("20.07095 mm")))
sketch1.addConstraint(Sketcher.Constraint("DistanceX", -1, 1, 19, 3, Q("117.297199 mm")))
sketch1.addConstraint(Sketcher.Constraint("DistanceX", -1, 1, 33, 3, Q("57.375499 mm")))
sketch1.addConstraint(Sketcher.Constraint("DistanceX", -1, 1, 57, 3, Q("92.297798 mm")))
sketch1.addConstraint(Sketcher.Constraint("DistanceX", -1, 1, 32, 2, Q("57.375499 mm")))
sketch1.addConstraint(Sketcher.Constraint("Distance", 6, Q("26.864022 mm")))
sketch1.addConstraint(Sketcher.Constraint("Distance", 14, Q("26.856951 mm")))
sketch1.addConstraint(Sketcher.Constraint("Distance", 26, Q("9.71485 mm")))
sketch1.addConstraint(Sketcher.Constraint("Distance", 42, Q("9.71485 mm")))
sketch1.addConstraint(Sketcher.Constraint("DistanceX", 32, 2, 32, 1, Q("55.084604 mm")))
sketch1.addConstraint(Sketcher.Constraint("DistanceX", 36, 2, 36, 1, Q("55.087594 mm")))
sketch1.addConstraint(Sketcher.Constraint("DistanceY", 20, 2, 20, 1, Q("43.741542 mm")))
sketch1.addConstraint(Sketcher.Constraint("DistanceY", 28, 2, 28, 1, Q("13.041823 mm")))
sketch1.addConstraint(Sketcher.Constraint("DistanceY", 40, 1, 40, 2, Q("13.044812 mm")))
sketch1.addConstraint(Sketcher.Constraint("DistanceY", 48, 1, 48, 2, Q("43.736542 mm")))
sketch1.addConstraint(Sketcher.Constraint("DistanceX", -1, 1, 1, 3, Q("98.581341 mm")))
sketch1.addConstraint(Sketcher.Constraint("DistanceY", 1, 3, -1, 1, Q("13.788709 mm")))
sketch1.addConstraint(Sketcher.Constraint("DistanceX", -1, 1, 3, 3, Q("6.526341 mm")))
sketch1.addConstraint(Sketcher.Constraint("DistanceY", 5, 3, -1, 1, Q("63.063209 mm")))
sketch1.addConstraint(Sketcher.Constraint("DistanceY", 7, 3, -1, 1, Q("84.887368 mm")))
sketch1.addConstraint(Sketcher.Constraint("DistanceY", 9, 3, -1, 1, Q("104.958318 mm")))
sketch1.addConstraint(Sketcher.Constraint("DistanceY", 13, 3, -1, 1, Q("84.887368 mm")))
sketch1.addConstraint(Sketcher.Constraint("DistanceY", 15, 3, -1, 1, Q("63.068209 mm")))
sketch1.addConstraint(Sketcher.Constraint("DistanceY", 16, 3, -1, 1, Q("103.513072 mm")))
sketch1.addConstraint(Sketcher.Constraint("DistanceY", 17, 3, -1, 1, Q("74.998768 mm")))
sketch1.addConstraint(Sketcher.Constraint("DistanceX", -1, 1, 18, 3, Q("52.551341 mm")))
sketch1.addConstraint(Sketcher.Constraint("DistanceY", 18, 3, -1, 1, Q("103.658318 mm")))
sketch1.addConstraint(Sketcher.Constraint("DistanceY", 19, 3, -1, 1, Q("103.511872 mm")))
sketch1.addConstraint(Sketcher.Constraint("DistanceX", -1, 1, 21, 3, Q("100.781341 mm")))
sketch1.addConstraint(Sketcher.Constraint("DistanceX", -1, 1, 23, 3, Q("103.25182 mm")))
sketch1.addConstraint(Sketcher.Constraint("DistanceX", -1, 1, 24, 3, Q("107.016568 mm")))
sketch1.addConstraint(Sketcher.Constraint("DistanceY", 24, 3, -1, 1, Q("74.998768 mm")))
sketch1.addConstraint(Sketcher.Constraint("DistanceX", -1, 1, 25, 3, Q("110.07421 mm")))
sketch1.addConstraint(Sketcher.Constraint("DistanceY", 35, 3, -1, 1, Q("103.158318 mm")))
sketch1.addConstraint(Sketcher.Constraint("DistanceX", 37, 3, -1, 1, Q("7.360411 mm")))
sketch1.addConstraint(Sketcher.Constraint("DistanceX", 43, 3, -1, 1, Q("4.971528 mm")))
sketch1.addConstraint(Sketcher.Constraint("DistanceX", -1, 1, 45, 3, Q("1.850862 mm")))
sketch1.addConstraint(Sketcher.Constraint("DistanceX", -1, 1, 47, 3, Q("4.326341 mm")))
sketch1.addConstraint(Sketcher.Constraint("DistanceY", 49, 3, -1, 1, Q("20.072251 mm")))
sketch1.addConstraint(Sketcher.Constraint("DistanceY", 51, 3, -1, 1, Q("15.588709 mm")))
sketch1.addConstraint(Sketcher.Constraint("DistanceX", -1, 1, 54, 3, Q("52.553841 mm")))
sketch1.addConstraint(Sketcher.Constraint("DistanceY", 54, 3, -1, 1, Q("15.088709 mm")))
sketch1.addConstraint(Sketcher.Constraint("DistanceY", 59, 3, -1, 1, Q("20.072251 mm")))
sketch1.addConstraint(Sketcher.Constraint("DistanceY", 0, 2, -1, 1, Q("13.788709 mm")))
sketch1.addConstraint(Sketcher.Constraint("DistanceX", -1, 1, 1, 2, Q("98.581341 mm")))
sketch1.addConstraint(Sketcher.Constraint("DistanceY", 3, 2, -1, 1, Q("13.788709 mm")))
sketch1.addConstraint(Sketcher.Constraint("DistanceY", 7, 2, -1, 1, Q("84.887368 mm")))
sketch1.addConstraint(Sketcher.Constraint("DistanceY", 11, 2, -1, 1, Q("104.958318 mm")))
sketch1.addConstraint(Sketcher.Constraint("DistanceX", -1, 1, 13, 2, Q("120.157859 mm")))
sketch1.addConstraint(Sketcher.Constraint("DistanceY", 23, 1, -1, 1, Q("73.20201 mm")))
sketch1.addConstraint(Sketcher.Constraint("DistanceX", -1, 1, 26, 2, Q("118.357859 mm")))
sketch1.addConstraint(Sketcher.Constraint("DistanceY", 26, 2, -1, 1, Q("84.218739 mm")))
sketch1.addConstraint(Sketcher.Constraint("DistanceX", -1, 1, 29, 1, Q("117.089441 mm")))
sketch1.addConstraint(Sketcher.Constraint("DistanceX", -1, 1, 30, 2, Q("114.454782 mm")))
sketch1.addConstraint(Sketcher.Constraint("DistanceX", 36, 2, -1, 1, Q("7.360411 mm")))
sketch1.addConstraint(Sketcher.Constraint("DistanceX", 37, 1, -1, 1, Q("9.35505 mm")))
sketch1.addConstraint(Sketcher.Constraint("DistanceY", 41, 1, -1, 1, Q("84.218739 mm")))
sketch1.addConstraint(Sketcher.Constraint("DistanceX", 42, 2, -1, 1, Q("6.385742 mm")))
sketch1.addConstraint(Sketcher.Constraint("DistanceX", -1, 1, 44, 2, Q("0.298388 mm")))
sketch1.addConstraint(Sketcher.Constraint("DistanceY", 44, 2, -1, 1, Q("73.20201 mm")))
sketch1.addConstraint(Sketcher.Constraint("DistanceX", -1, 1, 45, 1, Q("0.436648 mm")))
sketch1.addConstraint(Sketcher.Constraint("DistanceY", 48, 2, -1, 1, Q("20.072251 mm")))
sketch1.addConstraint(Sketcher.Constraint("DistanceY", 59, 1, -1, 1, Q("20.072251 mm")))
sketch1.addConstraint(Sketcher.Constraint("Distance", 22, Q("7.493785 mm")))
sketch1.addConstraint(Sketcher.Constraint("Distance", 46, Q("7.500856 mm")))
sketch1.addConstraint(Sketcher.Constraint("DistanceX", 7, 3, -1, 1, Q("13.640964 mm")))
sketch1.addConstraint(Sketcher.Constraint("DistanceX", -1, 1, 11, 3, Q("118.743646 mm")))
sketch1.addConstraint(Sketcher.Constraint("DistanceY", 21, 3, -1, 1, Q("63.813794 mm")))
sketch1.addConstraint(Sketcher.Constraint("DistanceX", -1, 1, 27, 3, Q("116.943646 mm")))
sketch1.addConstraint(Sketcher.Constraint("DistanceX", 39, 3, -1, 1, Q("11.840964 mm")))
sketch1.addConstraint(Sketcher.Constraint("DistanceY", 47, 3, -1, 1, Q("63.808794 mm")))
sketch1.addConstraint(Sketcher.Constraint("DistanceX", -1, 1, 50, 3, Q("7.972787 mm")))
sketch1.addConstraint(Sketcher.Constraint("DistanceX", -1, 1, 5, 1, Q("3.940554 mm")))
sketch1.addConstraint(Sketcher.Constraint("DistanceX", 9, 2, -1, 1, Q("13.640964 mm")))
sketch1.addConstraint(Sketcher.Constraint("DistanceX", -1, 1, 21, 2, Q("99.367127 mm")))
sketch1.addConstraint(Sketcher.Constraint("DistanceX", -1, 1, 24, 2, Q("108.813327 mm")))
sketch1.addConstraint(Sketcher.Constraint("DistanceY", 27, 1, -1, 1, Q("85.632953 mm")))
sketch1.addConstraint(Sketcher.Constraint("DistanceX", -1, 1, 33, 1, Q("55.386155 mm")))
sketch1.addConstraint(Sketcher.Constraint("DistanceX", -1, 1, 34, 2, Q("49.716526 mm")))
sketch1.addConstraint(Sketcher.Constraint("DistanceX", 38, 2, -1, 1, Q("11.987305 mm")))
sketch1.addConstraint(Sketcher.Constraint("DistanceY", 39, 1, -1, 1, Q("98.677765 mm")))
sketch1.addConstraint(Sketcher.Constraint("DistanceX", 43, 1, -1, 1, Q("3.710645 mm")))
sketch1.addConstraint(Sketcher.Constraint("DistanceX", -1, 1, 49, 1, Q("8.180546 mm")))
sketch1.addConstraint(Sketcher.Constraint("DistanceX", -1, 1, 50, 2, Q("10.815205 mm")))
sketch1.addConstraint(Sketcher.Constraint("DistanceX", -1, 1, 51, 1, Q("12.809884 mm")))
sketch1.addConstraint(Sketcher.Constraint("DistanceX", -1, 1, 53, 1, Q("49.719026 mm")))
sketch1.addConstraint(Sketcher.Constraint("DistanceX", -1, 1, 54, 2, Q("55.388655 mm")))
sketch1.addConstraint(Sketcher.Constraint("DistanceX", -1, 1, 57, 1, Q("94.292477 mm")))
sketch1.addConstraint(Sketcher.Constraint("DistanceX", -1, 1, 58, 2, Q("96.927136 mm")))
pad1 = body.newObject("PartDesign::Pad", "Pad")
pad1.Profile = sketch1
pad1.Length = 1

doc.recompute()
